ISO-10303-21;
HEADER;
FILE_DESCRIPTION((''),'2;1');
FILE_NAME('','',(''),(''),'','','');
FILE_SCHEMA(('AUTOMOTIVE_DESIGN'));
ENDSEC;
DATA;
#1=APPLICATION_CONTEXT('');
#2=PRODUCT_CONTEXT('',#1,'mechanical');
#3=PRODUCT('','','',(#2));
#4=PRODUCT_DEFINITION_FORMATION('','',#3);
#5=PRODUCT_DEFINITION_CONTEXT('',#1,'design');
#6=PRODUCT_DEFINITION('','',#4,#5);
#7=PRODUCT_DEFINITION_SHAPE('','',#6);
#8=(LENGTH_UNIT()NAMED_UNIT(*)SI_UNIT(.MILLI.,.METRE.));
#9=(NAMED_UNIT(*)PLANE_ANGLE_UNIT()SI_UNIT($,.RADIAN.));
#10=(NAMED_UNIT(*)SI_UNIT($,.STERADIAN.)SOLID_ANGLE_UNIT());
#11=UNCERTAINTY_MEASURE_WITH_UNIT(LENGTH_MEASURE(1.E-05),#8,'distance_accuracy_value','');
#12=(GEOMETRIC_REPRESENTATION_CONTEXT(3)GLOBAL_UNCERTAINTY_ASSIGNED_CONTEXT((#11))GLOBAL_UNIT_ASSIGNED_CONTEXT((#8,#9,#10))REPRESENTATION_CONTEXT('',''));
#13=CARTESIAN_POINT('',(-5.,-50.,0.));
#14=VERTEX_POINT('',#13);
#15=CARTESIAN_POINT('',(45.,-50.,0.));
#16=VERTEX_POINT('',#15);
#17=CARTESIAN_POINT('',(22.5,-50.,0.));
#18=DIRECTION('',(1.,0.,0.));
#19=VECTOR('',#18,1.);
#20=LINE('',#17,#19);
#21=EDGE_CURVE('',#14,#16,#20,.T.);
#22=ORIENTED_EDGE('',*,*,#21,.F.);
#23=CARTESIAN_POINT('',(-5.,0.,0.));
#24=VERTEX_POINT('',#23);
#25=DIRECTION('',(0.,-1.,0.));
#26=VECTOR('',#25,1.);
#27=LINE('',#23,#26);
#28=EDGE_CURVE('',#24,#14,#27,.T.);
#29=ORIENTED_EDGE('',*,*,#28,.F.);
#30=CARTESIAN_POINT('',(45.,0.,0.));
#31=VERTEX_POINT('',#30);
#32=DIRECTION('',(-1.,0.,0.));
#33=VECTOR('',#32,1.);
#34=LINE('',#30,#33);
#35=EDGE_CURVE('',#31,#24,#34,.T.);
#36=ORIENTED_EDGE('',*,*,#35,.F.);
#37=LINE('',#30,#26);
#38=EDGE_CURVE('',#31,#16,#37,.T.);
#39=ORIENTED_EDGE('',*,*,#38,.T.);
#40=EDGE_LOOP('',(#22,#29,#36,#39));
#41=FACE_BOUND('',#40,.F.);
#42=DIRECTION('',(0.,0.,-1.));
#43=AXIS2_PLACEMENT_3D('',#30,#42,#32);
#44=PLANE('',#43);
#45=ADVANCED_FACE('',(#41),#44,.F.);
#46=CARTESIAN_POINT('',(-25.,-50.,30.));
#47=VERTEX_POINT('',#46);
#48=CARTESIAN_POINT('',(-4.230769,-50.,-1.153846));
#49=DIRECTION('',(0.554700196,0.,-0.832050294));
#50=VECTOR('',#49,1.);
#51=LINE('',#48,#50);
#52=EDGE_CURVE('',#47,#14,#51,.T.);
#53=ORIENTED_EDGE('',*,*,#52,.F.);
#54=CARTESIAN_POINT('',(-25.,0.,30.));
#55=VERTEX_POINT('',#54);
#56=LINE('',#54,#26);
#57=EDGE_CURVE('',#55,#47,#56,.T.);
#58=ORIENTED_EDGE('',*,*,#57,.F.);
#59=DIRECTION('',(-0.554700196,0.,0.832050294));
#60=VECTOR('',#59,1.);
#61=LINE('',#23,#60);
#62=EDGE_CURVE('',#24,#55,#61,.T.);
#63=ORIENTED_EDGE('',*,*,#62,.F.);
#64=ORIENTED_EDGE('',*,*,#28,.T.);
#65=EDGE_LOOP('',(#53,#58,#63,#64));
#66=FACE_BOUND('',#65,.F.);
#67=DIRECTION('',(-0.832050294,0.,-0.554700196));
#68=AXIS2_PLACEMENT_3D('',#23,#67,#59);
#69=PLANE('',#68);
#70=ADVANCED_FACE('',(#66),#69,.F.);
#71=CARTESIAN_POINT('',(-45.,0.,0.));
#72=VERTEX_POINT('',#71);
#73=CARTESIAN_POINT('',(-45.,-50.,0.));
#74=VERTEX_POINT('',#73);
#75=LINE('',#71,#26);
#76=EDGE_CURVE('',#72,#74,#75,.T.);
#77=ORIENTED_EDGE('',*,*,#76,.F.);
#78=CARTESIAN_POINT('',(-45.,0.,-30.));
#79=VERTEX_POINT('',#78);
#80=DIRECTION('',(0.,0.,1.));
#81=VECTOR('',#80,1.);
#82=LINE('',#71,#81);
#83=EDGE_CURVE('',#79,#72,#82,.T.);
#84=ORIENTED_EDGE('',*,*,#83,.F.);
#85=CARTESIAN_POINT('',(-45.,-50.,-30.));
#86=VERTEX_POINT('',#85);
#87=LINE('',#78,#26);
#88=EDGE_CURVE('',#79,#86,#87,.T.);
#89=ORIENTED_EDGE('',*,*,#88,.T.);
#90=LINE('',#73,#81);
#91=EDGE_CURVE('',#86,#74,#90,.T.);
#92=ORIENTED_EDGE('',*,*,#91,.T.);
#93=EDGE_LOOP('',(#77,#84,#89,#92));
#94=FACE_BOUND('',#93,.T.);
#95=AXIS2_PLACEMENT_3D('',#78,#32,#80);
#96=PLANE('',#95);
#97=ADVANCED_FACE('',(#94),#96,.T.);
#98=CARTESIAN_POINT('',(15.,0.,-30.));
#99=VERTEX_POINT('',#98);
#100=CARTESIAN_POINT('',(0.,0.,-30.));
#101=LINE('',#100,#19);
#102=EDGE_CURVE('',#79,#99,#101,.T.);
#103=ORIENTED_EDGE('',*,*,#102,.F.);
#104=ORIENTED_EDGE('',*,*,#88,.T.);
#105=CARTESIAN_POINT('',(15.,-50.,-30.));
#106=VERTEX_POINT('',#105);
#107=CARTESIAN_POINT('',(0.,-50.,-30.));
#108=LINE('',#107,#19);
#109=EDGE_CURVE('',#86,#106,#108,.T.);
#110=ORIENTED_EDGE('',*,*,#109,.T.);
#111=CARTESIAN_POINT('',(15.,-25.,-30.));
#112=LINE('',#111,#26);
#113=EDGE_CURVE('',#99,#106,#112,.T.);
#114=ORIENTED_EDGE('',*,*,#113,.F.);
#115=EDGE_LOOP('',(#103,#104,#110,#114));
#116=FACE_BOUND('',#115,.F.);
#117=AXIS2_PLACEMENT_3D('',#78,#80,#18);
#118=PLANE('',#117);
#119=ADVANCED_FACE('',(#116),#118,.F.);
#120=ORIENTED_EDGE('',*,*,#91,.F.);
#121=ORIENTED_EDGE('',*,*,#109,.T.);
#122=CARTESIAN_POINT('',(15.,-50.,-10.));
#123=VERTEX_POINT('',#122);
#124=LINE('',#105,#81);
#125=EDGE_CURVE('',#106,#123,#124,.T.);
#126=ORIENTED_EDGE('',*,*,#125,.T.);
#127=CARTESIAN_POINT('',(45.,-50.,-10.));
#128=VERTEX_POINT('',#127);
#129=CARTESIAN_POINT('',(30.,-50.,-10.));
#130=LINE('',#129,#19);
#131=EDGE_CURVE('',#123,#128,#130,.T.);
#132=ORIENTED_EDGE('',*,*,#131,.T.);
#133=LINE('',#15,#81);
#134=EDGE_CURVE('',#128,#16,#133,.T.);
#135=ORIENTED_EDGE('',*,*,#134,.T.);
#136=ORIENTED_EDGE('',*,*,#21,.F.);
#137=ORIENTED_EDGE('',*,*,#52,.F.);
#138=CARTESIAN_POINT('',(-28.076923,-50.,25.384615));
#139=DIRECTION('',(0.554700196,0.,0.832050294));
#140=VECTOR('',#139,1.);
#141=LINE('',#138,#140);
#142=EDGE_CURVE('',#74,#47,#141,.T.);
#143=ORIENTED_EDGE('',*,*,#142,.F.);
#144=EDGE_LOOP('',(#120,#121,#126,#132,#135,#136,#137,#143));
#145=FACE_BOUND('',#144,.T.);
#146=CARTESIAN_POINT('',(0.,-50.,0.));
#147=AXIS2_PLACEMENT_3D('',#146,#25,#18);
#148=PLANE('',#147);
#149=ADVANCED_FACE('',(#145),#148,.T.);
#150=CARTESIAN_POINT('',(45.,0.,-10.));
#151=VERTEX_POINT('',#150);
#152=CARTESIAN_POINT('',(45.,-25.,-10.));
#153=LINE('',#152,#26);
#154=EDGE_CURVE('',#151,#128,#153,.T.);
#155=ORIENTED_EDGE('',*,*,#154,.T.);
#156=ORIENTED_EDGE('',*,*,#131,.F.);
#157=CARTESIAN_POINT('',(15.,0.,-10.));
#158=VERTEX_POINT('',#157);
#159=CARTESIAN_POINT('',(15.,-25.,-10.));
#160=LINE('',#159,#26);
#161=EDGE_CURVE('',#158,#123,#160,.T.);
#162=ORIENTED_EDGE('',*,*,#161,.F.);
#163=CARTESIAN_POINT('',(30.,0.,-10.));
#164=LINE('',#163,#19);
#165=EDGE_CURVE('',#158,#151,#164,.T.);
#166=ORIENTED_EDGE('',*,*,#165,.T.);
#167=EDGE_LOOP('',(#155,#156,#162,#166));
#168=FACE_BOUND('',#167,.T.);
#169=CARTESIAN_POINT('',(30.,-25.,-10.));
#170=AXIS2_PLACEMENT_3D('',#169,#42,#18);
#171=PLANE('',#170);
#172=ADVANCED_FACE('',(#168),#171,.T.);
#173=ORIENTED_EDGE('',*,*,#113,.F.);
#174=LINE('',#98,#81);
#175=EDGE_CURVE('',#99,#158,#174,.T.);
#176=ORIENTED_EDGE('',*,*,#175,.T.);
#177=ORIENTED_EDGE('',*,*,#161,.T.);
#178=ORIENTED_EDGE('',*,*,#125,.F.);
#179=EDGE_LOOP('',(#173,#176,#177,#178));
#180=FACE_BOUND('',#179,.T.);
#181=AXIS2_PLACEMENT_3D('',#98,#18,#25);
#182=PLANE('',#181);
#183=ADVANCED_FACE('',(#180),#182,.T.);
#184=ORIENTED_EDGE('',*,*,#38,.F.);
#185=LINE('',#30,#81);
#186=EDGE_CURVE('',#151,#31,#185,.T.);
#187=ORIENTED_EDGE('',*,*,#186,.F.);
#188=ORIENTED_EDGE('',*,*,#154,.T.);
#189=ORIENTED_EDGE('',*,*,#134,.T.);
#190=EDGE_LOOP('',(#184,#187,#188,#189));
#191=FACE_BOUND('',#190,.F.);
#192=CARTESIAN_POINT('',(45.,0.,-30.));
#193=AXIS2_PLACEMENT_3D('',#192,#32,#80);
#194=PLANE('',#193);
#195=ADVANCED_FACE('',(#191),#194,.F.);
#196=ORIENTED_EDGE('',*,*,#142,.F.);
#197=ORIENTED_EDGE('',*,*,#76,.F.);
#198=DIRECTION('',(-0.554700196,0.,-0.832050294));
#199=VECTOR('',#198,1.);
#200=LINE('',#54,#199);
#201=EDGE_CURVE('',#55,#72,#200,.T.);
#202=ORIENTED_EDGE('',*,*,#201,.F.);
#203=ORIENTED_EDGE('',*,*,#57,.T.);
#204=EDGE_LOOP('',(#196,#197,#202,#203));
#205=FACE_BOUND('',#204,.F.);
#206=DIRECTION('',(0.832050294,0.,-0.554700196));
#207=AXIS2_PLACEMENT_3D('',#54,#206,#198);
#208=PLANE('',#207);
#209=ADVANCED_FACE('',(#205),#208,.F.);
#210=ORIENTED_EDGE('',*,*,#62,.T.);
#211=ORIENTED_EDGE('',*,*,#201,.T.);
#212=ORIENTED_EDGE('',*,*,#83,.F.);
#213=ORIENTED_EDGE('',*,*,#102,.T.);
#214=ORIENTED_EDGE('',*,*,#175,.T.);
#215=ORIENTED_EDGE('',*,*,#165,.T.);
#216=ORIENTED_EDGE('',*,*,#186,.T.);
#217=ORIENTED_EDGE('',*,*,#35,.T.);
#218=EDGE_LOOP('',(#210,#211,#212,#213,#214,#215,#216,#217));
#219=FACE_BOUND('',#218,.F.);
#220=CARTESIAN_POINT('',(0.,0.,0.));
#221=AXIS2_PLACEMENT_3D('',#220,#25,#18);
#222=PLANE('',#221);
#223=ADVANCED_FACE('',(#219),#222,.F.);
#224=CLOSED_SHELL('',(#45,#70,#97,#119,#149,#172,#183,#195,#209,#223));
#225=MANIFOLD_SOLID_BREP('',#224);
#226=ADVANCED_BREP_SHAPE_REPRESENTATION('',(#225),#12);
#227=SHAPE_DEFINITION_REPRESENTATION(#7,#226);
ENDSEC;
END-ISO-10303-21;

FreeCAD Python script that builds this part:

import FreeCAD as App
import Part
import Sketcher
from FreeCAD import Vector

doc = App.newDocument("Part")
body = doc.addObject("PartDesign::Body", "Body")

# Sketch on XZ plane
sketch1 = doc.addObject("Sketcher::SketchObject", "Sketch")
body.addObject(sketch1)
sketch1.AttachmentSupport = (doc.XZ_Plane, [""])
sketch1.MapMode = "FlatFace"
sketch1.addGeometry(Part.LineSegment(Vector(-45, 30, 0), Vector(-45, -30, 0)), False)
sketch1.addGeometry(Part.LineSegment(Vector(-45, -30, 0), Vector(45, -30, 0)), False)
sketch1.addGeometry(Part.LineSegment(Vector(45, -30, 0), Vector(45, 30, 0)), False)
sketch1.addGeometry(Part.LineSegment(Vector(45, 30, 0), Vector(-45, 30, 0)), False)
sketch1.addConstraint(Sketcher.Constraint("Coincident", 0, 2, 1, 1))
sketch1.addConstraint(Sketcher.Constraint("Coincident", 1, 2, 2, 1))
sketch1.addConstraint(Sketcher.Constraint("Coincident", 2, 2, 3, 1))
sketch1.addConstraint(Sketcher.Constraint("Coincident", 3, 2, 0, 1))
sketch1.addConstraint(Sketcher.Constraint("Vertical", 0))
sketch1.addConstraint(Sketcher.Constraint("Horizontal", 1))
sketch1.addConstraint(Sketcher.Constraint("Vertical", 2))
sketch1.addConstraint(Sketcher.Constraint("Horizontal", 3))
sketch1.addConstraint(Sketcher.Constraint("Symmetric", 0, 2, 2, 2, -1, 1))
sketch1.addConstraint(Sketcher.Constraint("DistanceX", 1, 1, 1, 2, 90.0))
sketch1.addConstraint(Sketcher.Constraint("DistanceY", 0, 2, 0, 1, 60.0))
pad1 = doc.addObject("PartDesign::Pad", "Pad")
body.addObject(pad1)
pad1.Profile = sketch1
pad1.Length = 50

# Sketch on XY plane
sketch2 = doc.addObject("Sketcher::SketchObject", "Sketch001")
body.addObject(sketch2)
sketch2.AttachmentSupport = (doc.XY_Plane, [""])
sketch2.MapMode = "FlatFace"
sketch2.AttachmentOffset = App.Placement(Vector(0, 0, -30), App.Rotation())
sketch2.addGeometry(Part.LineSegment(Vector(15, -50, 0), Vector(15, 0, 0)), False)
sketch2.addGeometry(Part.LineSegment(Vector(15, 0, 0), Vector(45, 0, 0)), False)
sketch2.addGeometry(Part.LineSegment(Vector(45, 0, 0), Vector(45, -50, 0)), False)
sketch2.addGeometry(Part.LineSegment(Vector(45, -50, 0), Vector(15, -50, 0)), False)
sketch2.addConstraint(Sketcher.Constraint("Coincident", 0, 2, 1, 1))
sketch2.addConstraint(Sketcher.Constraint("Coincident", 1, 2, 2, 1))
sketch2.addConstraint(Sketcher.Constraint("Coincident", 2, 2, 3, 1))
sketch2.addConstraint(Sketcher.Constraint("Coincident", 3, 2, 0, 1))
sketch2.addConstraint(Sketcher.Constraint("Vertical", 0))
sketch2.addConstraint(Sketcher.Constraint("Horizontal", 1))
sketch2.addConstraint(Sketcher.Constraint("Vertical", 2))
sketch2.addConstraint(Sketcher.Constraint("Horizontal", 3))
sketch2.addConstraint(Sketcher.Constraint("PointOnObject", 0, 2, -1))
sketch2.addConstraint(Sketcher.Constraint("DistanceX", 1, 1, 1, 2, 30.0))
sketch2.addConstraint(Sketcher.Constraint("DistanceY", 0, 1, 0, 2, 50.0))
sketch2.addConstraint(Sketcher.Constraint("DistanceX", -1, 1, 0, 2, 15.0))
pocket1 = doc.addObject("PartDesign::Pocket", "Pocket")
body.addObject(pocket1)
pocket1.Profile = sketch2
pocket1.Length = 20
pocket1.Reversed = True

# Sketch on XZ plane
sketch3 = doc.addObject("Sketcher::SketchObject", "Sketch002")
body.addObject(sketch3)
sketch3.AttachmentSupport = (doc.XZ_Plane, [""])
sketch3.MapMode = "FlatFace"
sketch3.addGeometry(Part.LineSegment(Vector(-45, 30, 0), Vector(-25, 30, 0)), False)
sketch3.addGeometry(Part.LineSegment(Vector(-25, 30, 0), Vector(-45, 0, 0)), False)
sketch3.addGeometry(Part.LineSegment(Vector(-45, 0, 0), Vector(-45, 30, 0)), False)
sketch3.addConstraint(Sketcher.Constraint("Coincident", 0, 2, 1, 1))
sketch3.addConstraint(Sketcher.Constraint("Coincident", 1, 2, 2, 1))
sketch3.addConstraint(Sketcher.Constraint("Coincident", 2, 2, 0, 1))
sketch3.addConstraint(Sketcher.Constraint("Horizontal", 0))
sketch3.addConstraint(Sketcher.Constraint("Vertical", 2))
sketch3.addConstraint(Sketcher.Constraint("PointOnObject", 1, 2, -1))
sketch3.addConstraint(Sketcher.Constraint("DistanceX", 0, 1, 0, 2, 20.0))
sketch3.addConstraint(Sketcher.Constraint("DistanceY", 2, 1, 2, 2, 30.0))
sketch3.addConstraint(Sketcher.Constraint("DistanceX", 0, 2, -1, 1, 25.0))
pocket2 = doc.addObject("PartDesign::Pocket", "Pocket001")
body.addObject(pocket2)
pocket2.Profile = sketch3
pocket2.Type = "ThroughAll"
pocket2.Reversed = True

# Sketch on XZ plane
sketch4 = doc.addObject("Sketcher::SketchObject", "Sketch003")
body.addObject(sketch4)
sketch4.AttachmentSupport = (doc.XZ_Plane, [""])
sketch4.MapMode = "FlatFace"
sketch4.addGeometry(Part.LineSegment(Vector(45, 30, 0), Vector(45, 0, 0)), False)
sketch4.addGeometry(Part.LineSegment(Vector(45, 0, 0), Vector(-5, 0, 0)), False)
sketch4.addGeometry(Part.LineSegment(Vector(-5, 0, 0), Vector(-25, 30, 0)), False)
sketch4.addGeometry(Part.LineSegment(Vector(-25, 30, 0), Vector(45, 30, 0)), False)
sketch4.addConstraint(Sketcher.Constraint("Coincident", 0, 2, 1, 1))
sketch4.addConstraint(Sketcher.Constraint("Coincident", 1, 2, 2, 1))
sketch4.addConstraint(Sketcher.Constraint("Coincident", 2, 2, 3, 1))
sketch4.addConstraint(Sketcher.Constraint("Coincident", 3, 2, 0, 1))
sketch4.addConstraint(Sketcher.Constraint("Vertical", 0))
sketch4.addConstraint(Sketcher.Constraint("Horizontal", 1))
sketch4.addConstraint(Sketcher.Constraint("Horizontal", 3))
sketch4.addConstraint(Sketcher.Constraint("PointOnObject", 0, 2, -1))
sketch4.addConstraint(Sketcher.Constraint("DistanceX", 1, 2, 1, 1, 50.0))
sketch4.addConstraint(Sketcher.Constraint("DistanceX", 3, 1, 3, 2, 70.0))
sketch4.addConstraint(Sketcher.Constraint("DistanceY", 0, 2, 0, 1, 30.0))
sketch4.addConstraint(Sketcher.Constraint("DistanceX", -1, 1, 0, 2, 45.0))
pocket3 = doc.addObject("PartDesign::Pocket", "Pocket002")
body.addObject(pocket3)
pocket3.Profile = sketch4
pocket3.Type = "ThroughAll"
pocket3.Reversed = True

doc.recompute()
